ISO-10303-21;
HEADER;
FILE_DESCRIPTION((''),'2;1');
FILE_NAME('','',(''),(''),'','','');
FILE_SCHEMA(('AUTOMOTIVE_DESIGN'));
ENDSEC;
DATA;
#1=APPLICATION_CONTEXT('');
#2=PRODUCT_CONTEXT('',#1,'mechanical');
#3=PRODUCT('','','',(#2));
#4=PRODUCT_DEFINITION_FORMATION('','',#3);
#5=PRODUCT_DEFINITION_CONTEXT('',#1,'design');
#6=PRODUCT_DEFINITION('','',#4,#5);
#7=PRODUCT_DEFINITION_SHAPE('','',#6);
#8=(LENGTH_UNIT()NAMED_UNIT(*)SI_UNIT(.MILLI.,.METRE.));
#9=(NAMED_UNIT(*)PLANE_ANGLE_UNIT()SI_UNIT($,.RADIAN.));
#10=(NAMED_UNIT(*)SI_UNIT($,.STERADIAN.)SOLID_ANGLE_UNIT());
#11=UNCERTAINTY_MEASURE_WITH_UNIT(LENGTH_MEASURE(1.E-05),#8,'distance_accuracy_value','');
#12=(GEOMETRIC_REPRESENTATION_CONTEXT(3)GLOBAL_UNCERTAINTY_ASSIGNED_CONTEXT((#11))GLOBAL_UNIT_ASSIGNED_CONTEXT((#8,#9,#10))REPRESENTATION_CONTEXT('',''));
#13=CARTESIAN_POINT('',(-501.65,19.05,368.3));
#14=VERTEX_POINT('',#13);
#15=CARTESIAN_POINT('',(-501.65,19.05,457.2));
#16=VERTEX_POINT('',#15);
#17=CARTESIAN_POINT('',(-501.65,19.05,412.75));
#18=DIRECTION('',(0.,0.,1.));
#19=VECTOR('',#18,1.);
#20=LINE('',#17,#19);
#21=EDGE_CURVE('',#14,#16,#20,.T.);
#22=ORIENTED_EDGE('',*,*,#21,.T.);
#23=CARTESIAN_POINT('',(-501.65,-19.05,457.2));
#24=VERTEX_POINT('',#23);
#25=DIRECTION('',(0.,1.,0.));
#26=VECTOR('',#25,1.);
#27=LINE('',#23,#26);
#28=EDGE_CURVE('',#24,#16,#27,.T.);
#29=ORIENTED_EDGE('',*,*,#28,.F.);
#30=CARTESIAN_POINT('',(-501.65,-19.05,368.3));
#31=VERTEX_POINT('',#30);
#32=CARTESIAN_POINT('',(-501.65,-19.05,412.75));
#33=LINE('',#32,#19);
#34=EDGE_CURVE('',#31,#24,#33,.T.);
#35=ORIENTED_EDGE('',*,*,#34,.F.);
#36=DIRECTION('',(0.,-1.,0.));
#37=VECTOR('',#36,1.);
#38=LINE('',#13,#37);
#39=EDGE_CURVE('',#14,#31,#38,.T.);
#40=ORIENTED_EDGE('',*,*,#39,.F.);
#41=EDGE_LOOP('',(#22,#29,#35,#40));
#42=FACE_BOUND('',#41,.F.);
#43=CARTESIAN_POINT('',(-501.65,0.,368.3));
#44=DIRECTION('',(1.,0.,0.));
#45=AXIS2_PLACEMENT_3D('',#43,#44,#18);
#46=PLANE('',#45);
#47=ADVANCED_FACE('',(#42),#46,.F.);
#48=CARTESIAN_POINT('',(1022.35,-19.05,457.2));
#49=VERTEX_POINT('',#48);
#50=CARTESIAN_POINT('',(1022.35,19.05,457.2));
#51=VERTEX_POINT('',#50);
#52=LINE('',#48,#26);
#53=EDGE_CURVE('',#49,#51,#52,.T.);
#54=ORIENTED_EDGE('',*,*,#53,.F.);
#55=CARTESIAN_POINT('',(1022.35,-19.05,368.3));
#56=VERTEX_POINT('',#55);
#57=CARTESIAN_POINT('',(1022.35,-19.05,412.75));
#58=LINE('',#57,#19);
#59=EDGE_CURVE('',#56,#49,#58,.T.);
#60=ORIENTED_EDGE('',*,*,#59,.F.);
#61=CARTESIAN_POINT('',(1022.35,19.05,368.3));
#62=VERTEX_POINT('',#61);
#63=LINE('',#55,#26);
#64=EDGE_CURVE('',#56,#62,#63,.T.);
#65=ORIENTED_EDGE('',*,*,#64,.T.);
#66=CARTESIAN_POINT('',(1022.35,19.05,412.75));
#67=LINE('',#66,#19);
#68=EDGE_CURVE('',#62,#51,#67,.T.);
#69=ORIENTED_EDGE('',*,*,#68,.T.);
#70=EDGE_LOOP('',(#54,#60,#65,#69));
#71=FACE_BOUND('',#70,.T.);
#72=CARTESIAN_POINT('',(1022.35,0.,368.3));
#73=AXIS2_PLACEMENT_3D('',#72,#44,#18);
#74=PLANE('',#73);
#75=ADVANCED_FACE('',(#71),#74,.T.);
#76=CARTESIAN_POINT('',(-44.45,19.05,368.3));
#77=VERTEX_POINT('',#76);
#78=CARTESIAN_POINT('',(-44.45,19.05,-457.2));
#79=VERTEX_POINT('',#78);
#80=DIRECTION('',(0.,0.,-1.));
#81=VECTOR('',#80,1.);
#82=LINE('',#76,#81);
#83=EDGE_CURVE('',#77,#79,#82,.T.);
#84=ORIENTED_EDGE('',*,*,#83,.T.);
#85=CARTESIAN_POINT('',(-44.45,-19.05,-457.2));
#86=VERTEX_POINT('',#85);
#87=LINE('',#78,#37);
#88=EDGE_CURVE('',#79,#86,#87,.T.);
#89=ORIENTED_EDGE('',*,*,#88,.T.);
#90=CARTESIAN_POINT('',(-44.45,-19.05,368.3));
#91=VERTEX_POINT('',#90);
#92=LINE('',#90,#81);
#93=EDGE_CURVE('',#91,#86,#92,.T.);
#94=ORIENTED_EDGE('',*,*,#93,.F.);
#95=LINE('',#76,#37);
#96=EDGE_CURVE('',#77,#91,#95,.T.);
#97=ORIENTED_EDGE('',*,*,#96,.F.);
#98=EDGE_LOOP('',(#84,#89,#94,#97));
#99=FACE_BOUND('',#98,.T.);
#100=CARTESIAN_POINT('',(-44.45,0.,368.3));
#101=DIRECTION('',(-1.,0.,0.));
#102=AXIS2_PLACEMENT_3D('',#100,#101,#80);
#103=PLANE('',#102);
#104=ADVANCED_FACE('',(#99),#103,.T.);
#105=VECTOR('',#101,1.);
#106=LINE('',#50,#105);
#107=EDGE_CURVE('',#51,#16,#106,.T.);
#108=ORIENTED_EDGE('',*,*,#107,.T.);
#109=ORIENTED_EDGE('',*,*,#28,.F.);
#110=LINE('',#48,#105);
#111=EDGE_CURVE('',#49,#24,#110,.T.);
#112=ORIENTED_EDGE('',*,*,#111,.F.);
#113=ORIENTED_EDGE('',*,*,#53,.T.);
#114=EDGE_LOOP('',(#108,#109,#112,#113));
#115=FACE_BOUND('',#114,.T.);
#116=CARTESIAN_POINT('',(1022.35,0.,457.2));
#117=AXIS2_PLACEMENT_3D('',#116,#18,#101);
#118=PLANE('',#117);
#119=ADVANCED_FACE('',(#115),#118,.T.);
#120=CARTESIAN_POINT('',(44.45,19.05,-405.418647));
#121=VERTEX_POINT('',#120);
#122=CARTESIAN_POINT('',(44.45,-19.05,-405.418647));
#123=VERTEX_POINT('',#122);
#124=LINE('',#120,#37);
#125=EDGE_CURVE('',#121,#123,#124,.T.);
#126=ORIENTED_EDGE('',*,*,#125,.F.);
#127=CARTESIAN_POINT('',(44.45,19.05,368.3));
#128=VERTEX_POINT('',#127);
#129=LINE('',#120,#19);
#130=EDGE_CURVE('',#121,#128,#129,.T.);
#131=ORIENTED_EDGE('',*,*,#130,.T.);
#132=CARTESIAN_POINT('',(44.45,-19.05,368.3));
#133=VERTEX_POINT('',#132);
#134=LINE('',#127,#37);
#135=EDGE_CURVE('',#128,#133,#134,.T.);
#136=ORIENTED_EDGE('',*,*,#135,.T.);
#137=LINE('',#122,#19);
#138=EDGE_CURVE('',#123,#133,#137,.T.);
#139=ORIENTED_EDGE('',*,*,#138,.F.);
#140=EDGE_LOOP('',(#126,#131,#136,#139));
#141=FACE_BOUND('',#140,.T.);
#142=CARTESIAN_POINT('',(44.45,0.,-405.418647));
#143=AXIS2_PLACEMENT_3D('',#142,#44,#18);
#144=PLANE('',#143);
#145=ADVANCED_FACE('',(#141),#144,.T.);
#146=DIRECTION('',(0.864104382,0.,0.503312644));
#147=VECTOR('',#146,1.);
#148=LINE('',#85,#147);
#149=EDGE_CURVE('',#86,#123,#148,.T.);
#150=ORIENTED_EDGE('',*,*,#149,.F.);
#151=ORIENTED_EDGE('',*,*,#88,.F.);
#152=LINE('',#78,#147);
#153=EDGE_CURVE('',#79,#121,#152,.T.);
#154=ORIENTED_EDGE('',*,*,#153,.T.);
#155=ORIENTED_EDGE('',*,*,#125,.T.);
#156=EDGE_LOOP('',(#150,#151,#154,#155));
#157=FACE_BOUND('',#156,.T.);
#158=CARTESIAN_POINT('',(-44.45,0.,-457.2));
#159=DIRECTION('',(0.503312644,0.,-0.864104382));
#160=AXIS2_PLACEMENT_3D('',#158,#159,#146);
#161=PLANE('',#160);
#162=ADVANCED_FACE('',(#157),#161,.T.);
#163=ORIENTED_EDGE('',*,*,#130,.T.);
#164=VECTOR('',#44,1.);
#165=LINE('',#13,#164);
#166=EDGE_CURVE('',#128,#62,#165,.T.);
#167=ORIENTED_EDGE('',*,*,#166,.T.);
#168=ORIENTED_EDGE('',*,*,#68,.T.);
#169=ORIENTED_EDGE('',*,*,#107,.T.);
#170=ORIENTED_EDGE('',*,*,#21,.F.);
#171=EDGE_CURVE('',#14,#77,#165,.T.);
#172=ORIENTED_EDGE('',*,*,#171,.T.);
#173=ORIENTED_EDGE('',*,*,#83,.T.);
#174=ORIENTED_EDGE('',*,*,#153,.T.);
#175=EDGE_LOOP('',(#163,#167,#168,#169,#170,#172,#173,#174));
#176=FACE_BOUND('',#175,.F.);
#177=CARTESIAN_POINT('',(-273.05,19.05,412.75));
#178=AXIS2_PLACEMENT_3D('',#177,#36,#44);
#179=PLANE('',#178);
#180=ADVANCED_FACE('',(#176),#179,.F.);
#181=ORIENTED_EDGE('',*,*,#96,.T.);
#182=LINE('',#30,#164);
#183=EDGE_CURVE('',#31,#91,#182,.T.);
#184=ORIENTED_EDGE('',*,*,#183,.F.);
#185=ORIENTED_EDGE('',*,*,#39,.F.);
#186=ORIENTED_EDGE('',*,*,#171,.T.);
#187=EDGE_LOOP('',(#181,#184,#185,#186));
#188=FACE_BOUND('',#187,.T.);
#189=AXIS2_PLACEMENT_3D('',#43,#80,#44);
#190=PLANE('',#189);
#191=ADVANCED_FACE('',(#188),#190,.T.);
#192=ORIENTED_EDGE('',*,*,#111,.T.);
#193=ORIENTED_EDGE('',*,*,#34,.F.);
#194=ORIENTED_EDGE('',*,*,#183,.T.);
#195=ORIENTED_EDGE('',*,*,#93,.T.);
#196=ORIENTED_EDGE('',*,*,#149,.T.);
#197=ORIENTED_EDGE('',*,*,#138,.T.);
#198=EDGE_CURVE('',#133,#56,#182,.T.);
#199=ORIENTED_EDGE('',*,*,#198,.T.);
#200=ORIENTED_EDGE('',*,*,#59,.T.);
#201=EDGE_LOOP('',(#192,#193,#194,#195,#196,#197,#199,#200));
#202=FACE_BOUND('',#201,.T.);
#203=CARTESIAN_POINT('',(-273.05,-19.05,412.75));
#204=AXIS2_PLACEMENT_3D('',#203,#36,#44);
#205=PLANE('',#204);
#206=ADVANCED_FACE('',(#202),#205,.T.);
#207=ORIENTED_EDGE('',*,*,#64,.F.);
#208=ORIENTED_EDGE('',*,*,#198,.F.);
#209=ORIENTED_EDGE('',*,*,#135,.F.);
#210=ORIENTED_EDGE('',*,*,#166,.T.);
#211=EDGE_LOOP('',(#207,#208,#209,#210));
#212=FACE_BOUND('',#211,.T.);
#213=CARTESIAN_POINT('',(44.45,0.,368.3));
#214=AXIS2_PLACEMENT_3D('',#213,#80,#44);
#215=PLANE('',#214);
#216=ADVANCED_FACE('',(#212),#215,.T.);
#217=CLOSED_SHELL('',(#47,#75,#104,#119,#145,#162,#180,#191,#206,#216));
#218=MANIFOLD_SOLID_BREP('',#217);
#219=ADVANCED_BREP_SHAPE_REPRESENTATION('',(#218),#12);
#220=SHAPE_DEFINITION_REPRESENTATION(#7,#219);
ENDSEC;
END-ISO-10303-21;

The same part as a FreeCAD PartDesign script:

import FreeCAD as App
import Part
import Sketcher
from FreeCAD import Vector
Q = App.Units.Quantity

doc = App.newDocument("Part")
body = doc.addObject("PartDesign::Body", "Body")

sketch1 = body.newObject("Sketcher::SketchObject", "Sketch")
sketch1.AttachmentSupport = (doc.getObject("XZ_Plane"), [""])
sketch1.MapMode = "FlatFace"
sketch1.addGeometry([
    Part.LineSegment(Vector(-502, 457, 0), Vector(-502, 368, 0)),
    Part.LineSegment(Vector(-502, 368, 0), Vector(-44, 368, 0)),
    Part.LineSegment(Vector(-44, 368, 0), Vector(-44, -457, 0)),
    Part.LineSegment(Vector(-44, -457, 0), Vector(44, -405, 0)),
    Part.LineSegment(Vector(44, -405, 0), Vector(44, 368, 0)),
    Part.LineSegment(Vector(44, 368, 0), Vector(1022, 368, 0)),
    Part.LineSegment(Vector(1022, 368, 0), Vector(1022, 457, 0)),
    Part.LineSegment(Vector(1022, 457, 0), Vector(-502, 457, 0)),
], False)
sketch1.addConstraint([
    Sketcher.Constraint("Coincident", 0, 2, 1, 1),
    Sketcher.Constraint("Coincident", 1, 2, 2, 1),
    Sketcher.Constraint("Coincident", 2, 2, 3, 1),
    Sketcher.Constraint("Coincident", 3, 2, 4, 1),
    Sketcher.Constraint("Coincident", 4, 2, 5, 1),
    Sketcher.Constraint("Coincident", 5, 2, 6, 1),
    Sketcher.Constraint("Coincident", 6, 2, 7, 1),
    Sketcher.Constraint("Coincident", 7, 2, 0, 1),
    Sketcher.Constraint("Vertical", 0),
    Sketcher.Constraint("Horizontal", 1),
    Sketcher.Constraint("Vertical", 2),
    Sketcher.Constraint("Vertical", 4),
    Sketcher.Constraint("Horizontal", 5),
    Sketcher.Constraint("Vertical", 6),
    Sketcher.Constraint("Horizontal", 7),
    Sketcher.Constraint("Symmetric", 1, 2, 4, 2, -2),
    Sketcher.Constraint("DistanceX", 1, 1, 1, 2, Q("18 in")),
    Sketcher.Constraint("DistanceX", 7, 2, 7, 1, Q("60 in")),
    Sketcher.Constraint("DistanceX", 5, 1, 5, 2, Q("38.5 in")),
    Sketcher.Constraint("DistanceY", 0, 2, 0, 1, Q("3.5 in")),
    Sketcher.Constraint("DistanceY", 2, 2, 2, 1, Q("32.5 in")),
    Sketcher.Constraint("DistanceY", 2, 2, -1, 1, Q("18 in")),
    Sketcher.Constraint("Distance", 3, Q("102.881089 mm")),
])
pad1 = body.newObject("PartDesign::Pad", "Pad")
pad1.Profile = sketch1
pad1.Length = Q("1.5 in")
pad1.Midplane = True

doc.recompute()
